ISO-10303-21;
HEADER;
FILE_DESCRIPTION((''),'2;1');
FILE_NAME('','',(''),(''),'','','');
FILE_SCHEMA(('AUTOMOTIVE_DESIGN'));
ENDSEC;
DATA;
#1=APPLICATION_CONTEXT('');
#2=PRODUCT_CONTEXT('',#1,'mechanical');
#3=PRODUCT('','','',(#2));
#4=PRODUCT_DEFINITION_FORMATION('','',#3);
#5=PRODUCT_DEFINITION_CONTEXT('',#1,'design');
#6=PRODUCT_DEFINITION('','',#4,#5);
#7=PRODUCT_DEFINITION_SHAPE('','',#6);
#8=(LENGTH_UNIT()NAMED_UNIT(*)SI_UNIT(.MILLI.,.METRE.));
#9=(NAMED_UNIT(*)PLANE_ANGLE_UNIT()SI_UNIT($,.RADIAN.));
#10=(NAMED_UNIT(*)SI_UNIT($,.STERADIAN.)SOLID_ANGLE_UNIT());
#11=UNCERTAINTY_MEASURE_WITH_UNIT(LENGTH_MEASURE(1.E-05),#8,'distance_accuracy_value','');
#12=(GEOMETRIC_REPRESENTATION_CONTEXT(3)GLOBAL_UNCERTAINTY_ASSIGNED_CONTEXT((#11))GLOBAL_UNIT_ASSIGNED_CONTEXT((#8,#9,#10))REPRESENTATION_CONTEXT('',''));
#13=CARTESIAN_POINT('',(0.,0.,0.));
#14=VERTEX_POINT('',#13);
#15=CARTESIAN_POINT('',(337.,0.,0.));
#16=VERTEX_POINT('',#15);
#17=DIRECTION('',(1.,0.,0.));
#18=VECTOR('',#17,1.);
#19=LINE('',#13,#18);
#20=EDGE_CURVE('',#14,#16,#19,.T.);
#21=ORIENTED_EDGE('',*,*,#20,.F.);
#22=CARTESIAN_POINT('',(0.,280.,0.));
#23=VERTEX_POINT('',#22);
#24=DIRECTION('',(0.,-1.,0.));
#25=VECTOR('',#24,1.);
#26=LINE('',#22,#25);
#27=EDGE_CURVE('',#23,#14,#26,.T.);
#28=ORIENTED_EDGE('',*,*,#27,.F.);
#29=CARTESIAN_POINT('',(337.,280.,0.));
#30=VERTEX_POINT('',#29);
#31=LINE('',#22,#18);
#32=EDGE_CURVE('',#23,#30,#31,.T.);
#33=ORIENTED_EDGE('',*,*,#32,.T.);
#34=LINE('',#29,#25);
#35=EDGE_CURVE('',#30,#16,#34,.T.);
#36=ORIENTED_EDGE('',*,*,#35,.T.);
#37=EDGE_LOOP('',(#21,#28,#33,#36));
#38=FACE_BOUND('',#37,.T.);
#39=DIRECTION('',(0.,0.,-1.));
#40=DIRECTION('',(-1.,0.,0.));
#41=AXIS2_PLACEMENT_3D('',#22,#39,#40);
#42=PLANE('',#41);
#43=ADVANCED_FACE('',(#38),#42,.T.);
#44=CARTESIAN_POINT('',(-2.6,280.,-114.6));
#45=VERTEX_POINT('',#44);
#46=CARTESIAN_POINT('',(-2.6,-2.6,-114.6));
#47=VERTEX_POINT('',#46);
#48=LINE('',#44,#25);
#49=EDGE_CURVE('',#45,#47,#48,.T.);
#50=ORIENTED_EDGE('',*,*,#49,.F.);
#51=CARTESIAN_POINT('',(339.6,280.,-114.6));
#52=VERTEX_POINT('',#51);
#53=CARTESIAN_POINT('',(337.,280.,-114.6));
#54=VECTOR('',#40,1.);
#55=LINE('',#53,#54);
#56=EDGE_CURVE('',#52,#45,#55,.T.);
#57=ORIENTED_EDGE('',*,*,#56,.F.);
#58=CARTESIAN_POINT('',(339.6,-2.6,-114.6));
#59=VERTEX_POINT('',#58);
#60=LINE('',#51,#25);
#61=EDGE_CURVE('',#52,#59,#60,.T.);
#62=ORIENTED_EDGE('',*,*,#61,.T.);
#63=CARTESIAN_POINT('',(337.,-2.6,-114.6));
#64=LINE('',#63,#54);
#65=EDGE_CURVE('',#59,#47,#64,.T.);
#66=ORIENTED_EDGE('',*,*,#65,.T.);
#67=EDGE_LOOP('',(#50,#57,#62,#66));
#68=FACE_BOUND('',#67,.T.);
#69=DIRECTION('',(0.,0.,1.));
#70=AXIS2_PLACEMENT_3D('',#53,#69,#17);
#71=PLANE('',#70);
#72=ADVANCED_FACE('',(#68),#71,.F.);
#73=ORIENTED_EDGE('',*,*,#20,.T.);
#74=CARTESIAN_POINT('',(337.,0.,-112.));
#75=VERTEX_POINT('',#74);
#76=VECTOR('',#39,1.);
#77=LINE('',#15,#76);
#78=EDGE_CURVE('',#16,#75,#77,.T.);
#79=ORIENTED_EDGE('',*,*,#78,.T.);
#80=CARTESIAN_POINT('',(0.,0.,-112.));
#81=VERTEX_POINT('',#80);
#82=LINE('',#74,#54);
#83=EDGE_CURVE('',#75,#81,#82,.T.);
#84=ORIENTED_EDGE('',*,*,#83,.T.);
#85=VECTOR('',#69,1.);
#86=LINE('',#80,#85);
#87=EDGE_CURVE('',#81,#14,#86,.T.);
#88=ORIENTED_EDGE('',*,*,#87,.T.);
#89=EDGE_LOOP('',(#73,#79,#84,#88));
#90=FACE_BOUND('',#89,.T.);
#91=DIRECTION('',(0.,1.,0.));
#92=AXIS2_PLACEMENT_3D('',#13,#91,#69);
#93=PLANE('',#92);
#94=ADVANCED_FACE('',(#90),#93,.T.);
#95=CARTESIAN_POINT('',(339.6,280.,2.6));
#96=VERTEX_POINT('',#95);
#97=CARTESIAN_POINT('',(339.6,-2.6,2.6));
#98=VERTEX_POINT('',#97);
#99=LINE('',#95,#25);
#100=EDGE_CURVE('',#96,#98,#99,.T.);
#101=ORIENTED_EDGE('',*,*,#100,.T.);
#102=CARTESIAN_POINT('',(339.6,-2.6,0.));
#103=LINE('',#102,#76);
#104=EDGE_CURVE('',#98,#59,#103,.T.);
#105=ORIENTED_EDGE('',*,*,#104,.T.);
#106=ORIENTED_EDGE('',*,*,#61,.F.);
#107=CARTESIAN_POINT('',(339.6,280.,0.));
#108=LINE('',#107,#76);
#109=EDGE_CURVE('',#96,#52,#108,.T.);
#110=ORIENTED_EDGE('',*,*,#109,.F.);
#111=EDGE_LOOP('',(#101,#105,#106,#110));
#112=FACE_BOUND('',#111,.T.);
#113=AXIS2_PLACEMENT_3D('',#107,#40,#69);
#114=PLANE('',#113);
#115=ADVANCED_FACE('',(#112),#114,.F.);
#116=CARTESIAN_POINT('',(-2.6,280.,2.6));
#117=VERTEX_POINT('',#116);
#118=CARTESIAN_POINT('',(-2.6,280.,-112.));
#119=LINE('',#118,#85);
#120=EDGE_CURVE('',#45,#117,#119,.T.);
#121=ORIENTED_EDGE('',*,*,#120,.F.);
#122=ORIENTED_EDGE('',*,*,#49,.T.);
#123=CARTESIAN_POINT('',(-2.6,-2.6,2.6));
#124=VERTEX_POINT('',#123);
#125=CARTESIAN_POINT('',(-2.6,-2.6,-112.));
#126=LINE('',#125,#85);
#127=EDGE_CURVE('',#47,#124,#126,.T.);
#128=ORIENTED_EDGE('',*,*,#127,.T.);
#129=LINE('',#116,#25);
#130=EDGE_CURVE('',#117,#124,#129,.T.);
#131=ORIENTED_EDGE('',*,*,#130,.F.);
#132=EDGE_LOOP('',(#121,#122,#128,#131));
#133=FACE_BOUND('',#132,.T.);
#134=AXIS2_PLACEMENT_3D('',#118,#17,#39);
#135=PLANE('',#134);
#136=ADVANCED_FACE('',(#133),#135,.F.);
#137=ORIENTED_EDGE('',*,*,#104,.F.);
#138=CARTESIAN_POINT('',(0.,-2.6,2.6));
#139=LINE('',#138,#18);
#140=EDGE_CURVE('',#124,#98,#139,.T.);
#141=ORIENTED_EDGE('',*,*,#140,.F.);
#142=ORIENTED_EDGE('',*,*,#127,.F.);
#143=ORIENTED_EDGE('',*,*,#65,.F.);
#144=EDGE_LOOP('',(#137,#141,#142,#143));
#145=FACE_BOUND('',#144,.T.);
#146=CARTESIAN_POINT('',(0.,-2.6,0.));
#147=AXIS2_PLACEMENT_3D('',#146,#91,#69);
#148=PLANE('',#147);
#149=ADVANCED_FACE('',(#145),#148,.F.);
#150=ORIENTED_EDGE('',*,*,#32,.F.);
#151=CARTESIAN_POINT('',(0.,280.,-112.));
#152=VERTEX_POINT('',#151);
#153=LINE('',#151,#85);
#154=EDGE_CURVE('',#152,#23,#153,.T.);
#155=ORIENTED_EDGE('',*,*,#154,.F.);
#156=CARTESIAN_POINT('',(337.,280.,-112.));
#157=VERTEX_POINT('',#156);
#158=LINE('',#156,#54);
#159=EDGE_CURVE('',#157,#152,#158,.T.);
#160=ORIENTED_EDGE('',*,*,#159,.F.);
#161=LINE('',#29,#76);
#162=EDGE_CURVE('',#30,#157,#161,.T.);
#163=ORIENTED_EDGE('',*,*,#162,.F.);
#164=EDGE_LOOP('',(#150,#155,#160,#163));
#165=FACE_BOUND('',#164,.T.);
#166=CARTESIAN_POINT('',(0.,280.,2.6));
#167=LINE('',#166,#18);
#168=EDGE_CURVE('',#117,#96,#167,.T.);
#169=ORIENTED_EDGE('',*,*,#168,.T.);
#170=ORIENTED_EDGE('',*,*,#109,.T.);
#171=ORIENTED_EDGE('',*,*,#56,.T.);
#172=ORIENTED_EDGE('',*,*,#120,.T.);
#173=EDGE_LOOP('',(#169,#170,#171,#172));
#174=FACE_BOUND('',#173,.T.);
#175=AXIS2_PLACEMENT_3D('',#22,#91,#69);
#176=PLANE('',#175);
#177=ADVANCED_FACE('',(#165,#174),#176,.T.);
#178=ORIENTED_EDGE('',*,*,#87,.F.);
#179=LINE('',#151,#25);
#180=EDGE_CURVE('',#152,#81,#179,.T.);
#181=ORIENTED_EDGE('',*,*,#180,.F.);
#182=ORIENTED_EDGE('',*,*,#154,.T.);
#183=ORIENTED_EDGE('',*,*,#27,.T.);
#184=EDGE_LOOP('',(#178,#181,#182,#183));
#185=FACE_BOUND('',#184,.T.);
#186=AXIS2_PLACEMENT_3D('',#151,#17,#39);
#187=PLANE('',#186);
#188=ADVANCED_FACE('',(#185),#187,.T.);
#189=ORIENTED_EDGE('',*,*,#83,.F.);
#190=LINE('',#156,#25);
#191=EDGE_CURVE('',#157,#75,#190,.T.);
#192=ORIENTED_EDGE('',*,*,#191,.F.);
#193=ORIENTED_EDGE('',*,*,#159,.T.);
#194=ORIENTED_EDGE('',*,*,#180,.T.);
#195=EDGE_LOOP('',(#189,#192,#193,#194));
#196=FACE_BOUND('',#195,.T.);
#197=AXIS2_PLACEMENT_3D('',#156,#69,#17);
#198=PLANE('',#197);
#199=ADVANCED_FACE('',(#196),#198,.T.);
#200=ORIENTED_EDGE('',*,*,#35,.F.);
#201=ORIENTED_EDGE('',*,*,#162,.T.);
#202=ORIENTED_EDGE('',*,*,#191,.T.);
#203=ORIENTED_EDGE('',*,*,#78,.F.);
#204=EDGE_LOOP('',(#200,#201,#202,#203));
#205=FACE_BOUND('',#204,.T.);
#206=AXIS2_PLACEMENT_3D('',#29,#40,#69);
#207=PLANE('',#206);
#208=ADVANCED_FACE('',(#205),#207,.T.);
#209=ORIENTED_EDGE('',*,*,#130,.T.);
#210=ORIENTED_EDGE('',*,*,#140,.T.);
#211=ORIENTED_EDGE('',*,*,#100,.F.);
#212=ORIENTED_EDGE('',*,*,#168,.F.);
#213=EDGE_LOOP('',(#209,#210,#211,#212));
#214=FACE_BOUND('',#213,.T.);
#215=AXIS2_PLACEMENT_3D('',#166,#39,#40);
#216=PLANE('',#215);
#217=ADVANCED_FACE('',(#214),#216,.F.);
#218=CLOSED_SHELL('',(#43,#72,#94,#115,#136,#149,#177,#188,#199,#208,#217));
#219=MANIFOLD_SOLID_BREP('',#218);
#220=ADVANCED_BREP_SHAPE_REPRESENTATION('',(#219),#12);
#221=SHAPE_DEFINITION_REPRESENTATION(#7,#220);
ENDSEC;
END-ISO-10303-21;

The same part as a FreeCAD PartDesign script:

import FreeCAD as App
import Part
import Sketcher
from FreeCAD import Vector
Q = App.Units.Quantity


def faces_at(feature, points):
    """Names of the faces that lie closest to the given points."""
    faces = feature.Shape.Faces
    near = lambda p: min(range(len(faces)), key=lambda i: faces[i].distToShape(Part.Vertex(*p))[0])
    return sorted({f"Face{near(p) + 1}" for p in points})


def add_polygon(sketch, points):
    """Adds a closed chain of lines whose ends are joined by coincident constraints."""
    first, n = sketch.GeometryCount, len(points)
    for a, b in zip(points, points[1:] + points[:1]):
        sketch.addGeometry(Part.LineSegment(App.Vector(*a, 0), App.Vector(*b, 0)), False)
    for i in range(n):
        sketch.addConstraint(Sketcher.Constraint("Coincident", first + i, 2, first + (i + 1) % n, 1))

doc = App.newDocument("Part")
body = doc.addObject("PartDesign::Body", "Body")

# Sketch on XZ plane
sketch1 = body.newObject("Sketcher::SketchObject", "Sketch")
sketch1.AttachmentSupport = (doc.getObject("XZ_Plane"), [""])
sketch1.MapMode = "FlatFace"
add_polygon(sketch1, [(0, -112), (0, 0), (337, 0), (337, -112)])  # lines 0-3
sketch1.addConstraint([
    Sketcher.Constraint("Vertical", 0),
    Sketcher.Constraint("Horizontal", 1),
    Sketcher.Constraint("Vertical", 2),
    Sketcher.Constraint("Horizontal", 3),
    Sketcher.Constraint("Coincident", 0, 2, -1, 1),
    Sketcher.Constraint("DistanceX", 1, 1, 1, 2, Q("337 mm")),
    Sketcher.Constraint("DistanceY", 0, 1, 0, 2, Q("112 mm")),
])
pad1 = body.newObject("PartDesign::Pad", "Pad")
pad1.Profile = sketch1
pad1.Length = 280
pad1.Reversed = True
doc.recompute()

thickness = body.newObject("PartDesign::Thickness", "Thickness")
thickness.Base = (pad1, faces_at(pad1, [(168.5, 280, -56)]))
thickness.Value = 2.6
thickness.Reversed = False
thickness.Join = "Intersection"

doc.recompute()
